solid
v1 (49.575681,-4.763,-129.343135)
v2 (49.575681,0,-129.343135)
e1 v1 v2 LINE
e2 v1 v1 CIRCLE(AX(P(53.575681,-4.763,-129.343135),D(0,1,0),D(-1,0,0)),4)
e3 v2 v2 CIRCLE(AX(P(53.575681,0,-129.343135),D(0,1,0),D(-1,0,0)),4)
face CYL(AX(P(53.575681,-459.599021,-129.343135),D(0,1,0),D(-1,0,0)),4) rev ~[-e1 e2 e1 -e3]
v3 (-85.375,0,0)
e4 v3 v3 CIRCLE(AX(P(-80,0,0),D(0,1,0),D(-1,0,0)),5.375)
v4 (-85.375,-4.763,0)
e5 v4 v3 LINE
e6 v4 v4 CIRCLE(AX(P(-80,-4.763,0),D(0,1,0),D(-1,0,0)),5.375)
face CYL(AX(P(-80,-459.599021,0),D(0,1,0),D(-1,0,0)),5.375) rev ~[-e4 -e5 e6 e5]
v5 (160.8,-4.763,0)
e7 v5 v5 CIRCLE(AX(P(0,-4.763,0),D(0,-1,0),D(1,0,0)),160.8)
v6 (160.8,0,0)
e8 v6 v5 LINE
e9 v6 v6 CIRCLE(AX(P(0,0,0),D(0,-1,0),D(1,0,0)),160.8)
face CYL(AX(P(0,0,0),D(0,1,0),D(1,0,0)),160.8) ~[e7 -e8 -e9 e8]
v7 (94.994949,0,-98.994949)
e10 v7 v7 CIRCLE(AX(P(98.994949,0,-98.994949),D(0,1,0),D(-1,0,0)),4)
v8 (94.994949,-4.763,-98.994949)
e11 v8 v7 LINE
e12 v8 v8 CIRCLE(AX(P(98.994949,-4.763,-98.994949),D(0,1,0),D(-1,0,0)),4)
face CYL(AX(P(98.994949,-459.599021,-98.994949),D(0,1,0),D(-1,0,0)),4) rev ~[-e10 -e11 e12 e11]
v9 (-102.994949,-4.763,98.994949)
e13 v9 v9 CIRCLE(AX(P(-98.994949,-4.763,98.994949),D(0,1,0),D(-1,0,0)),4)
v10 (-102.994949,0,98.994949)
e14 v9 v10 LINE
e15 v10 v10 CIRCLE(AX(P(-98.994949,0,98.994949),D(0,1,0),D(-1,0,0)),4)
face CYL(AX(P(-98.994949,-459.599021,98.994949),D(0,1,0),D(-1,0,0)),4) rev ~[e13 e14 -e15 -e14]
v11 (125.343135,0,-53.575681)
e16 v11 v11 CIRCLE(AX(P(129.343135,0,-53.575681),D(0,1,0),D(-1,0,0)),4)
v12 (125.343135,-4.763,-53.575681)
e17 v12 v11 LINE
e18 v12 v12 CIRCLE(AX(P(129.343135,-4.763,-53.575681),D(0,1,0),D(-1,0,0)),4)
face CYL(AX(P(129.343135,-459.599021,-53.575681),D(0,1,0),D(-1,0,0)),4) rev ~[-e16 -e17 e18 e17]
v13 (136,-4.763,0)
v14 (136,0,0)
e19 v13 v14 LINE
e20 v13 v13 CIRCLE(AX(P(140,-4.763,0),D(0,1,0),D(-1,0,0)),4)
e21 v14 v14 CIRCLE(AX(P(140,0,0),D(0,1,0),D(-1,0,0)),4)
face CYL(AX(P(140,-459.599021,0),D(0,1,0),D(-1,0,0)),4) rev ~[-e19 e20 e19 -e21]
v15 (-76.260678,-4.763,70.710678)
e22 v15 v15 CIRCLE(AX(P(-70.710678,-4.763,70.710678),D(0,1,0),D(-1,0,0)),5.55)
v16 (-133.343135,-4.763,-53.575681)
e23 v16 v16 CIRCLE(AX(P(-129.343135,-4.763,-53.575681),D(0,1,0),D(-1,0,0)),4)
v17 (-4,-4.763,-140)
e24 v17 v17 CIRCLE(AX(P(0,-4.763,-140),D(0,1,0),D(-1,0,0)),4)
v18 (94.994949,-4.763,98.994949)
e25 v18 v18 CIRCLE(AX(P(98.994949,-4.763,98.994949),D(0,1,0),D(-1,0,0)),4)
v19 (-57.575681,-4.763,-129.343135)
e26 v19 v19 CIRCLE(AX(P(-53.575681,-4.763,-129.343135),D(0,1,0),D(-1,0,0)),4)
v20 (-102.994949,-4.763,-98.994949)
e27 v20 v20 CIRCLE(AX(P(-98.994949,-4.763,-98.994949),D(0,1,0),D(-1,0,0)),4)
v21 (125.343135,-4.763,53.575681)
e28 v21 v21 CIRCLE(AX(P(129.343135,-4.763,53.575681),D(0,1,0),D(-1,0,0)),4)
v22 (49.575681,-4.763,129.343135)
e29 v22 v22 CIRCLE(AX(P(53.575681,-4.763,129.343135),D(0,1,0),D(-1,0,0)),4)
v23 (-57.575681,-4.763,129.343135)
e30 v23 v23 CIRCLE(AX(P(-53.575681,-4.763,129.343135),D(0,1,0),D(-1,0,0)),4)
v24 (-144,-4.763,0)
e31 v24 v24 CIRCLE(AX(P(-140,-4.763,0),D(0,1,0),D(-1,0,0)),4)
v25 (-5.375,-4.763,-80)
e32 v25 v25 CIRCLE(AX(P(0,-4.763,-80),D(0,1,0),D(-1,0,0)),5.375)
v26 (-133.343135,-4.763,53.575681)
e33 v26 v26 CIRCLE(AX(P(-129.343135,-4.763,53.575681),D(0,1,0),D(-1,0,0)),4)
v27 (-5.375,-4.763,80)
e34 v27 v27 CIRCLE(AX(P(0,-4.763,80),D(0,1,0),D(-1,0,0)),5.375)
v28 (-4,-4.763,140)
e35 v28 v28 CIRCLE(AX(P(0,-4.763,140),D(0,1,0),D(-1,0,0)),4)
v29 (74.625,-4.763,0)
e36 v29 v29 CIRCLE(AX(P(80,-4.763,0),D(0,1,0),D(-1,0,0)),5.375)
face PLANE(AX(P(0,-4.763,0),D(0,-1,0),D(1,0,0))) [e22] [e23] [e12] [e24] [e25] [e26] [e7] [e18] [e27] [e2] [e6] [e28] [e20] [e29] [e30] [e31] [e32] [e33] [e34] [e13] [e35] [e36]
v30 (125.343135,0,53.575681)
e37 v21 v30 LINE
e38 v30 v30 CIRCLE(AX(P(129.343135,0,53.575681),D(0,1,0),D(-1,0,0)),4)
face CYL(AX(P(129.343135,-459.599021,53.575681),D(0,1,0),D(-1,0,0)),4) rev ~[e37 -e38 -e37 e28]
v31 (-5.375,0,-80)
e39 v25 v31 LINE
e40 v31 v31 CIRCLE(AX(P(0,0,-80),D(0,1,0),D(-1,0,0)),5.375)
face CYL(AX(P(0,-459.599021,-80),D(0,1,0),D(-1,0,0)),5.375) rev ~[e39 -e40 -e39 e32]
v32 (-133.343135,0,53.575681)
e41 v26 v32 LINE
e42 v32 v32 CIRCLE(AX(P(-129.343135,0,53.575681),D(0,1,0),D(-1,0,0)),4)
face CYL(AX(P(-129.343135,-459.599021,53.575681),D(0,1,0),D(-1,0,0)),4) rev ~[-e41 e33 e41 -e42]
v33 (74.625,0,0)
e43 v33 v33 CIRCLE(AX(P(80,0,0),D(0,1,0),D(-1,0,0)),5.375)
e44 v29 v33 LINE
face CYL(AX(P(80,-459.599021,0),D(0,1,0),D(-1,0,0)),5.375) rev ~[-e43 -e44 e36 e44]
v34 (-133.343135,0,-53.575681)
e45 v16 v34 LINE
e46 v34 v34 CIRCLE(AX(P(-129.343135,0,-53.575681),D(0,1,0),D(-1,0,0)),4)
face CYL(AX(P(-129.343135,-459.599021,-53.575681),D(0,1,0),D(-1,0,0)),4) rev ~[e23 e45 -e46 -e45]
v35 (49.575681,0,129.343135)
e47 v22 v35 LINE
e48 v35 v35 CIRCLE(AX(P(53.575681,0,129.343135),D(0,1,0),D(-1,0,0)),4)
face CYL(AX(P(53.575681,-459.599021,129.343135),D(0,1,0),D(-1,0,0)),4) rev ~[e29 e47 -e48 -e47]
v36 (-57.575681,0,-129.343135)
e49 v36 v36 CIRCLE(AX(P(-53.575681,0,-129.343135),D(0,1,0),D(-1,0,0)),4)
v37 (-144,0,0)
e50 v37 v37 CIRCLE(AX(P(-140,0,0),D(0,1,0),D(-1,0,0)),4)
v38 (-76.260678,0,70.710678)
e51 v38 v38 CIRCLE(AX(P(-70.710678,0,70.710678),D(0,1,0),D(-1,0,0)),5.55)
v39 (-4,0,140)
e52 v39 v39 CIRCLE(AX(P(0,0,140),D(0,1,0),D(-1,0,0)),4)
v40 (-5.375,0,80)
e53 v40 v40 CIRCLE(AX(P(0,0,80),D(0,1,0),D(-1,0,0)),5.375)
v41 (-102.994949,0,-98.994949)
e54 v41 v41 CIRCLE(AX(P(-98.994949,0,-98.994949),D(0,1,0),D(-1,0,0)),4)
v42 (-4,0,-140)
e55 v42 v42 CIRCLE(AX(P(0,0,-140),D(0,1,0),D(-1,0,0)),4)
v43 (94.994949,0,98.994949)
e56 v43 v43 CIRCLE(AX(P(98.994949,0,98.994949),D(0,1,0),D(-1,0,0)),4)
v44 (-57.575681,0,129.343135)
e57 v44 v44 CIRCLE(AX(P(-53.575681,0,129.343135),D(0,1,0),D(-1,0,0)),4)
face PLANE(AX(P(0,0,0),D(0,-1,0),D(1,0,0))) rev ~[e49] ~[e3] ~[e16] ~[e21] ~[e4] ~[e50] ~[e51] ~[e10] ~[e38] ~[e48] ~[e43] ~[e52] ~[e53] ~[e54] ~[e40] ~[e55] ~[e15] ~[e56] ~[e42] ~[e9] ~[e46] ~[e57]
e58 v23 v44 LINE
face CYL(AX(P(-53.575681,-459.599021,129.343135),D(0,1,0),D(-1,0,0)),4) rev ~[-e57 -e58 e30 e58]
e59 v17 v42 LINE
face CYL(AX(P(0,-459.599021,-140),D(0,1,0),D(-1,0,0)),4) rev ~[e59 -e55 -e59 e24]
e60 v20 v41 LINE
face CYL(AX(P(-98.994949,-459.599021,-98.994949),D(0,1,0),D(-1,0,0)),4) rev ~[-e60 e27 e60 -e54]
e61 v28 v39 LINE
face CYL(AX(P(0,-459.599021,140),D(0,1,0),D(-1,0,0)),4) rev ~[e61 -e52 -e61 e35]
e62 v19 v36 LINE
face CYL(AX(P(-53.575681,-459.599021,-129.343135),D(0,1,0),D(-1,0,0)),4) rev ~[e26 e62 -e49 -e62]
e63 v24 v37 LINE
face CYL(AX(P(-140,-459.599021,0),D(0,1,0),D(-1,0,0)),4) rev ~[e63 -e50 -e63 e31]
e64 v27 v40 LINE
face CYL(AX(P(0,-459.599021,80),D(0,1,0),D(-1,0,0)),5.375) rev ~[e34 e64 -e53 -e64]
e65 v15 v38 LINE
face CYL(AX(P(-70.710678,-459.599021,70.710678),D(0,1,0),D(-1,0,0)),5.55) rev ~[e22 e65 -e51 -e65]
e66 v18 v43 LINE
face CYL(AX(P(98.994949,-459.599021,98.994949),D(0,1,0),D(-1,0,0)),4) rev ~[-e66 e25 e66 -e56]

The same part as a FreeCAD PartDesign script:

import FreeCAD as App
import Part
import Sketcher
from FreeCAD import Vector

doc = App.newDocument("Part")
body = doc.addObject("PartDesign::Body", "Body")

# Sketch on XZ plane
sketch1 = body.newObject("Sketcher::SketchObject", "Sketch")
sketch1.AttachmentSupport = (doc.getObject("XZ_Plane"), [""])
sketch1.MapMode = "FlatFace"
sketch1.addGeometry(Part.Circle(Vector(0, 0, 0), Vector(0, 0, 1), 161), False)
sketch1.addConstraint([
    Sketcher.Constraint("Coincident", 0, 3, -1, 1),
    Sketcher.Constraint("Diameter", 0, 321.6),
])
pad1 = body.newObject("PartDesign::Pad", "Pad")
pad1.Profile = sketch1
pad1.Length = 4.763

# Sketch on XZ plane
sketch2 = body.newObject("Sketcher::SketchObject", "Sketch001")
sketch2.AttachmentSupport = (doc.getObject("XZ_Plane"), [""])
sketch2.MapMode = "FlatFace"
sketch2.AttachmentOffset = App.Placement(Vector(0, 0, 4.763), App.Rotation())
sketch2.addGeometry([
    Part.Circle(Vector(-80, 0, 0), Vector(0, 0, 1), 5),
    Part.Circle(Vector(0, 80, 0), Vector(0, 0, 1), 5),
    Part.Circle(Vector(80, 0, 0), Vector(0, 0, 1), 5),
    Part.Circle(Vector(0, -80, 0), Vector(0, 0, 1), 5),
], False)
sketch2.addConstraint([
    Sketcher.Constraint("Equal", 0, 1),
    Sketcher.Constraint("Equal", 1, 2),
    Sketcher.Constraint("Equal", 2, 3),
    Sketcher.Constraint("Symmetric", 0, 3, 2, 3, -1, 1),
    Sketcher.Constraint("Symmetric", 1, 3, 3, 3, -1, 1),
    Sketcher.Constraint("PointOnObject", 0, 3, -1),
    Sketcher.Constraint("PointOnObject", 1, 3, -2),
    Sketcher.Constraint("Diameter", 0, 10.75),
    Sketcher.Constraint("DistanceX", 0, 3, -1, 1, 80.0),
    Sketcher.Constraint("DistanceY", -1, 1, 1, 3, 80.0),
])
doc.recompute()
hole = body.newObject("PartDesign::Hole", "Hole")
hole.Profile = sketch2
hole.ThreadType = "None"
hole.Diameter = 10.75
hole.DepthType = "ThroughAll"

# Sketch on XZ plane
sketch3 = body.newObject("Sketcher::SketchObject", "Sketch002")
sketch3.AttachmentSupport = (doc.getObject("XZ_Plane"), [""])
sketch3.MapMode = "FlatFace"
sketch3.AttachmentOffset = App.Placement(Vector(0, 0, 4.763), App.Rotation())
sketch3.addGeometry([
    Part.Circle(Vector(-53.6, 129.3, 0), Vector(0, 0, 1), 4),  # 0
    Part.Circle(Vector(0, 140, 0), Vector(0, 0, 1), 4),  # 1
    Part.Circle(Vector(53.6, 129.3, 0), Vector(0, 0, 1), 4),  # 2
    Part.Circle(Vector(99, 99, 0), Vector(0, 0, 1), 4),  # 3
    Part.Circle(Vector(129.3, 53.6, 0), Vector(0, 0, 1), 4),  # 4
    Part.Circle(Vector(140, 0, 0), Vector(0, 0, 1), 4),  # 5
    Part.Circle(Vector(129.3, -53.6, 0), Vector(0, 0, 1), 4),  # 6
    Part.Circle(Vector(99, -99, 0), Vector(0, 0, 1), 4),  # 7
    Part.Circle(Vector(53.6, -129.3, 0), Vector(0, 0, 1), 4),  # 8
    Part.Circle(Vector(0, -140, 0), Vector(0, 0, 1), 4),  # 9
    Part.Circle(Vector(-53.6, -129.3, 0), Vector(0, 0, 1), 4),  # 10
    Part.Circle(Vector(-99, -99, 0), Vector(0, 0, 1), 4),  # 11
    Part.Circle(Vector(-129.3, -53.6, 0), Vector(0, 0, 1), 4),  # 12
    Part.Circle(Vector(-140, 0, 0), Vector(0, 0, 1), 4),  # 13
    Part.Circle(Vector(-129.3, 53.6, 0), Vector(0, 0, 1), 4),  # 14
    Part.Circle(Vector(-99, 99, 0), Vector(0, 0, 1), 4),  # 15
], False)
sketch3.addConstraint([
    Sketcher.Constraint("Equal", 0, 1),
    Sketcher.Constraint("Equal", 1, 2),
    Sketcher.Constraint("Equal", 2, 3),
    Sketcher.Constraint("Equal", 3, 4),
    Sketcher.Constraint("Equal", 4, 5),
    Sketcher.Constraint("Equal", 5, 6),
    Sketcher.Constraint("Equal", 6, 7),
    Sketcher.Constraint("Equal", 7, 8),
    Sketcher.Constraint("Equal", 8, 9),
    Sketcher.Constraint("Equal", 9, 10),
    Sketcher.Constraint("Equal", 10, 11),
    Sketcher.Constraint("Equal", 11, 12),
    Sketcher.Constraint("Equal", 12, 13),
    Sketcher.Constraint("Equal", 13, 14),
    Sketcher.Constraint("Equal", 14, 15),
    Sketcher.Constraint("Symmetric", 0, 3, 8, 3, -1, 1),
    Sketcher.Constraint("Symmetric", 1, 3, 9, 3, -1, 1),
    Sketcher.Constraint("Symmetric", 2, 3, 10, 3, -1, 1),
    Sketcher.Constraint("Symmetric", 3, 3, 11, 3, -1, 1),
    Sketcher.Constraint("Symmetric", 4, 3, 12, 3, -1, 1),
    Sketcher.Constraint("Symmetric", 5, 3, 13, 3, -1, 1),
    Sketcher.Constraint("Symmetric", 6, 3, 14, 3, -1, 1),
    Sketcher.Constraint("Symmetric", 7, 3, 15, 3, -1, 1),
    Sketcher.Constraint("Symmetric", 0, 3, 2, 3, -2),
    Sketcher.Constraint("Symmetric", 7, 3, 11, 3, -2),
    Sketcher.Constraint("Symmetric", 6, 3, 12, 3, -2),
    Sketcher.Constraint("PointOnObject", 1, 3, -2),
    Sketcher.Constraint("PointOnObject", 5, 3, -1),
    Sketcher.Constraint("Diameter", 0, 8.0),
    Sketcher.Constraint("DistanceY", -1, 1, 1, 3, 140.0),
    Sketcher.Constraint("DistanceX", -1, 1, 5, 3, 140.0),
    Sketcher.Constraint("DistanceY", 7, 3, 3, 3, 197.989898),
    Sketcher.Constraint("DistanceX", 11, 3, 7, 3, 197.989898),
    Sketcher.Constraint("DistanceX", 0, 3, -1, 1, 53.575681),
    Sketcher.Constraint("DistanceY", -1, 1, 4, 3, 53.575681),
    Sketcher.Constraint("DistanceY", -1, 1, 0, 3, 129.343135),
    Sketcher.Constraint("DistanceX", -1, 1, 4, 3, 129.343135),
])
doc.recompute()
hole2 = body.newObject("PartDesign::Hole", "Hole001")
hole2.Profile = sketch3
hole2.ThreadType = "None"
hole2.Diameter = 8
hole2.DepthType = "ThroughAll"

# Sketch on XZ plane
sketch4 = body.newObject("Sketcher::SketchObject", "Sketch003")
sketch4.AttachmentSupport = (doc.getObject("XZ_Plane"), [""])
sketch4.MapMode = "FlatFace"
sketch4.AttachmentOffset = App.Placement(Vector(0, 0, 4.763), App.Rotation())
sketch4.addGeometry(Part.Circle(Vector(-71, 71, 0), Vector(0, 0, 1), 6), False)
sketch4.addConstraint([
    Sketcher.Constraint("Diameter", 0, 11.1),
    Sketcher.Constraint("DistanceX", 0, 3, -1, 1, 70.710678),
    Sketcher.Constraint("DistanceY", -1, 1, 0, 3, 70.710678),
])
doc.recompute()
hole3 = body.newObject("PartDesign::Hole", "Hole002")
hole3.Profile = sketch4
hole3.ThreadType = "None"
hole3.Diameter = 11.1
hole3.DepthType = "ThroughAll"

doc.recompute()
